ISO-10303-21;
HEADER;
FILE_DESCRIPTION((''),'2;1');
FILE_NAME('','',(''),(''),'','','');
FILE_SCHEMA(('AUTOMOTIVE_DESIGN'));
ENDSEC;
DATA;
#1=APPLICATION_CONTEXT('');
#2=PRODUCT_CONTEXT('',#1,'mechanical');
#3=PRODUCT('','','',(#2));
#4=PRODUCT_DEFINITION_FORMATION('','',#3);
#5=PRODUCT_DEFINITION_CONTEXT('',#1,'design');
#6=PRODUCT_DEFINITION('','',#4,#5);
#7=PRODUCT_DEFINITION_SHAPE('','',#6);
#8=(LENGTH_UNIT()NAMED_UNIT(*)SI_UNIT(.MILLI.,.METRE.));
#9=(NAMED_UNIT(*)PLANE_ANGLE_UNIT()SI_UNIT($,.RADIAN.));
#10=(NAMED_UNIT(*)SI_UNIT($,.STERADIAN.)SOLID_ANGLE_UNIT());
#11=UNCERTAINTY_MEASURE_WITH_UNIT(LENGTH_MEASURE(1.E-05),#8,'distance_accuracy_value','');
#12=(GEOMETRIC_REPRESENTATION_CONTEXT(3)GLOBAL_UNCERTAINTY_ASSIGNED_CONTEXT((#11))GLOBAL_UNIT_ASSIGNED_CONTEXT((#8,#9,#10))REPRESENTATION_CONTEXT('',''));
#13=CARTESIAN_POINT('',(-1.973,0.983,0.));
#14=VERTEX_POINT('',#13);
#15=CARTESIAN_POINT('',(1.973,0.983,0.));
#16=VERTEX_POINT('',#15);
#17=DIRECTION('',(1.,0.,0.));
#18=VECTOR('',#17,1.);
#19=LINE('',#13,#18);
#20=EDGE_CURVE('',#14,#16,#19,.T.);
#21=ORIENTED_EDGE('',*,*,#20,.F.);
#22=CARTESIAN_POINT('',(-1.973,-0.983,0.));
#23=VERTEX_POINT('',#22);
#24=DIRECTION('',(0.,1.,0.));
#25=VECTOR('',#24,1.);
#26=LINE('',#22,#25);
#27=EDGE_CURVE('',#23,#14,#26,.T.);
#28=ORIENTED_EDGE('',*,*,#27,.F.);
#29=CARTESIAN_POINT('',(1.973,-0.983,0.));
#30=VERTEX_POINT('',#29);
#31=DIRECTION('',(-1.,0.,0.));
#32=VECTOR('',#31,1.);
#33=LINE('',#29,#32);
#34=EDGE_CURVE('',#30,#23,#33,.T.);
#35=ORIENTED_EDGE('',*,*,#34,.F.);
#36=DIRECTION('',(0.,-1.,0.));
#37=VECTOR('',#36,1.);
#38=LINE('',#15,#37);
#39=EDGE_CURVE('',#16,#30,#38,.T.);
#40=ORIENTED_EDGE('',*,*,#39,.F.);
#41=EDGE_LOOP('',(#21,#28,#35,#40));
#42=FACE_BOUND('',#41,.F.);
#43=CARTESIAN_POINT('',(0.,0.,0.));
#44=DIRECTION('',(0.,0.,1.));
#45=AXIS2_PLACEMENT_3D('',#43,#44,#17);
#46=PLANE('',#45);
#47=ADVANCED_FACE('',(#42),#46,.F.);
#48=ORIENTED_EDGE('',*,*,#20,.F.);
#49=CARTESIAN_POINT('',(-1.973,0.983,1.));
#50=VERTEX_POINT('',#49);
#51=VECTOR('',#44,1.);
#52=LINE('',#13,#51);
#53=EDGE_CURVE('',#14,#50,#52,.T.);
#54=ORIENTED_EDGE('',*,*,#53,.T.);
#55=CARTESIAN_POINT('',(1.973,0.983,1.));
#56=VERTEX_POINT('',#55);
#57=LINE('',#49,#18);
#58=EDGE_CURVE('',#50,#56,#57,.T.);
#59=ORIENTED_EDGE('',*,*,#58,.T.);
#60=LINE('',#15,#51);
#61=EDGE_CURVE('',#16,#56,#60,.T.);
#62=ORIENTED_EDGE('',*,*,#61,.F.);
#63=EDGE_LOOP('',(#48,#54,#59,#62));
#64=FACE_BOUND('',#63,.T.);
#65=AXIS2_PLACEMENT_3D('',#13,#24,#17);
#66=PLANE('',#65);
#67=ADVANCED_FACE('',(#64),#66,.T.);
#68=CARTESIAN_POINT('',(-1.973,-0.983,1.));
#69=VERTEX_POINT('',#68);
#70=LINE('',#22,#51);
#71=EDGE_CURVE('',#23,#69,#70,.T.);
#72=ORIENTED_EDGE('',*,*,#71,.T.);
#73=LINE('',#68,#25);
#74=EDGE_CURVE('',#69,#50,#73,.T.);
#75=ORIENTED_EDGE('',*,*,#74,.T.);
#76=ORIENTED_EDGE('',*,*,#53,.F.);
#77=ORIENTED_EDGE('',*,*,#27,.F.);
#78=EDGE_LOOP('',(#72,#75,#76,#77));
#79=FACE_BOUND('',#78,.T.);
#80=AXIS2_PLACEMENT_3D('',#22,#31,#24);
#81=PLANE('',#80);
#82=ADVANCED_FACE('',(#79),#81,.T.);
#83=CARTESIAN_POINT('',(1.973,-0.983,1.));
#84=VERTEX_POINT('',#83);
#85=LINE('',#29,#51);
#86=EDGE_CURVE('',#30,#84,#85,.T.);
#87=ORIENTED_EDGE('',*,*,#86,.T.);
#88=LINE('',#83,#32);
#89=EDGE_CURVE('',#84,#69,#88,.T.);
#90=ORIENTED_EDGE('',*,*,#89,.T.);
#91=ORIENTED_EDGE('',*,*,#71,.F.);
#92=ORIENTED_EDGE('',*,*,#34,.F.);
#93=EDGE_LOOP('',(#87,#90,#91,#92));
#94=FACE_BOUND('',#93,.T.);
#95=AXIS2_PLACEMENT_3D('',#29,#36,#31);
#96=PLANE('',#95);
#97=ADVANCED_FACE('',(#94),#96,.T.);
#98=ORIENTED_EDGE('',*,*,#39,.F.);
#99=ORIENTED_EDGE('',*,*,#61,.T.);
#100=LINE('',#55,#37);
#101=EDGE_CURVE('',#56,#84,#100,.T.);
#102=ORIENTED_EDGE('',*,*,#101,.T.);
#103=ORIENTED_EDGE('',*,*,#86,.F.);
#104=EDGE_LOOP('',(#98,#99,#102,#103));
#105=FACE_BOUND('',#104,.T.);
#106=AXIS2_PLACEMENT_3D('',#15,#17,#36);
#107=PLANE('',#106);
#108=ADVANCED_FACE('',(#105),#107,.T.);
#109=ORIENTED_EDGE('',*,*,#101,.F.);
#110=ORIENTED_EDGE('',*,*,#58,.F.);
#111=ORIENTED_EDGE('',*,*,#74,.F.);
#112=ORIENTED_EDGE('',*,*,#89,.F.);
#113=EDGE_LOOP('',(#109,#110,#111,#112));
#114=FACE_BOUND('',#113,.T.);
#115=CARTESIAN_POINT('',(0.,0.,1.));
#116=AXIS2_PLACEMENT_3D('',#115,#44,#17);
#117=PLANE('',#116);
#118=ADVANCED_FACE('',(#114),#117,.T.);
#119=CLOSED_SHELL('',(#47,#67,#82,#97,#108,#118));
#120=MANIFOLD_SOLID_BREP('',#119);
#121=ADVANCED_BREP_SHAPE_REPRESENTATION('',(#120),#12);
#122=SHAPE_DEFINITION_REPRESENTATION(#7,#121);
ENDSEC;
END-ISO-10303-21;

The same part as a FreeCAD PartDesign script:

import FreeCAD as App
import Part
import Sketcher
Q = App.Units.Quantity

doc = App.newDocument("Part")
body = doc.addObject("PartDesign::Body", "Body")

sketch1 = doc.addObject("Sketcher::SketchObject", "Sketch")
body.addObject(sketch1)
sketch1.AttachmentSupport = (doc.XY_Plane, [""])
sketch1.MapMode = "FlatFace"
sketch1.addGeometry(Part.LineSegment(App.Vector(2, 1, 0), App.Vector(-2, 1, 0)), False)
sketch1.addGeometry(Part.LineSegment(App.Vector(-2, 1, 0), App.Vector(-2, -1, 0)), False)
sketch1.addGeometry(Part.LineSegment(App.Vector(-2, -1, 0), App.Vector(2, -1, 0)), False)
sketch1.addGeometry(Part.LineSegment(App.Vector(2, -1, 0), App.Vector(2, 1, 0)), False)
sketch1.addConstraint(Sketcher.Constraint("Coincident", 0, 2, 1, 1))
sketch1.addConstraint(Sketcher.Constraint("Coincident", 1, 2, 2, 1))
sketch1.addConstraint(Sketcher.Constraint("Coincident", 2, 2, 3, 1))
sketch1.addConstraint(Sketcher.Constraint("Coincident", 3, 2, 0, 1))
sketch1.addConstraint(Sketcher.Constraint("Horizontal", 0))
sketch1.addConstraint(Sketcher.Constraint("Vertical", 1))
sketch1.addConstraint(Sketcher.Constraint("Horizontal", 2))
sketch1.addConstraint(Sketcher.Constraint("Vertical", 3))
sketch1.addConstraint(Sketcher.Constraint("Symmetric", 0, 2, 2, 2, -1, 1))
sketch1.addConstraint(Sketcher.Constraint("DistanceX", 0, 2, 0, 1, Q("3.946 mm")))
sketch1.addConstraint(Sketcher.Constraint("DistanceY", 1, 2, 1, 1, Q("1.966 mm")))
pad1 = doc.addObject("PartDesign::Pad", "Pad")
body.addObject(pad1)
pad1.Profile = sketch1
pad1.Length = 1

doc.recompute()
